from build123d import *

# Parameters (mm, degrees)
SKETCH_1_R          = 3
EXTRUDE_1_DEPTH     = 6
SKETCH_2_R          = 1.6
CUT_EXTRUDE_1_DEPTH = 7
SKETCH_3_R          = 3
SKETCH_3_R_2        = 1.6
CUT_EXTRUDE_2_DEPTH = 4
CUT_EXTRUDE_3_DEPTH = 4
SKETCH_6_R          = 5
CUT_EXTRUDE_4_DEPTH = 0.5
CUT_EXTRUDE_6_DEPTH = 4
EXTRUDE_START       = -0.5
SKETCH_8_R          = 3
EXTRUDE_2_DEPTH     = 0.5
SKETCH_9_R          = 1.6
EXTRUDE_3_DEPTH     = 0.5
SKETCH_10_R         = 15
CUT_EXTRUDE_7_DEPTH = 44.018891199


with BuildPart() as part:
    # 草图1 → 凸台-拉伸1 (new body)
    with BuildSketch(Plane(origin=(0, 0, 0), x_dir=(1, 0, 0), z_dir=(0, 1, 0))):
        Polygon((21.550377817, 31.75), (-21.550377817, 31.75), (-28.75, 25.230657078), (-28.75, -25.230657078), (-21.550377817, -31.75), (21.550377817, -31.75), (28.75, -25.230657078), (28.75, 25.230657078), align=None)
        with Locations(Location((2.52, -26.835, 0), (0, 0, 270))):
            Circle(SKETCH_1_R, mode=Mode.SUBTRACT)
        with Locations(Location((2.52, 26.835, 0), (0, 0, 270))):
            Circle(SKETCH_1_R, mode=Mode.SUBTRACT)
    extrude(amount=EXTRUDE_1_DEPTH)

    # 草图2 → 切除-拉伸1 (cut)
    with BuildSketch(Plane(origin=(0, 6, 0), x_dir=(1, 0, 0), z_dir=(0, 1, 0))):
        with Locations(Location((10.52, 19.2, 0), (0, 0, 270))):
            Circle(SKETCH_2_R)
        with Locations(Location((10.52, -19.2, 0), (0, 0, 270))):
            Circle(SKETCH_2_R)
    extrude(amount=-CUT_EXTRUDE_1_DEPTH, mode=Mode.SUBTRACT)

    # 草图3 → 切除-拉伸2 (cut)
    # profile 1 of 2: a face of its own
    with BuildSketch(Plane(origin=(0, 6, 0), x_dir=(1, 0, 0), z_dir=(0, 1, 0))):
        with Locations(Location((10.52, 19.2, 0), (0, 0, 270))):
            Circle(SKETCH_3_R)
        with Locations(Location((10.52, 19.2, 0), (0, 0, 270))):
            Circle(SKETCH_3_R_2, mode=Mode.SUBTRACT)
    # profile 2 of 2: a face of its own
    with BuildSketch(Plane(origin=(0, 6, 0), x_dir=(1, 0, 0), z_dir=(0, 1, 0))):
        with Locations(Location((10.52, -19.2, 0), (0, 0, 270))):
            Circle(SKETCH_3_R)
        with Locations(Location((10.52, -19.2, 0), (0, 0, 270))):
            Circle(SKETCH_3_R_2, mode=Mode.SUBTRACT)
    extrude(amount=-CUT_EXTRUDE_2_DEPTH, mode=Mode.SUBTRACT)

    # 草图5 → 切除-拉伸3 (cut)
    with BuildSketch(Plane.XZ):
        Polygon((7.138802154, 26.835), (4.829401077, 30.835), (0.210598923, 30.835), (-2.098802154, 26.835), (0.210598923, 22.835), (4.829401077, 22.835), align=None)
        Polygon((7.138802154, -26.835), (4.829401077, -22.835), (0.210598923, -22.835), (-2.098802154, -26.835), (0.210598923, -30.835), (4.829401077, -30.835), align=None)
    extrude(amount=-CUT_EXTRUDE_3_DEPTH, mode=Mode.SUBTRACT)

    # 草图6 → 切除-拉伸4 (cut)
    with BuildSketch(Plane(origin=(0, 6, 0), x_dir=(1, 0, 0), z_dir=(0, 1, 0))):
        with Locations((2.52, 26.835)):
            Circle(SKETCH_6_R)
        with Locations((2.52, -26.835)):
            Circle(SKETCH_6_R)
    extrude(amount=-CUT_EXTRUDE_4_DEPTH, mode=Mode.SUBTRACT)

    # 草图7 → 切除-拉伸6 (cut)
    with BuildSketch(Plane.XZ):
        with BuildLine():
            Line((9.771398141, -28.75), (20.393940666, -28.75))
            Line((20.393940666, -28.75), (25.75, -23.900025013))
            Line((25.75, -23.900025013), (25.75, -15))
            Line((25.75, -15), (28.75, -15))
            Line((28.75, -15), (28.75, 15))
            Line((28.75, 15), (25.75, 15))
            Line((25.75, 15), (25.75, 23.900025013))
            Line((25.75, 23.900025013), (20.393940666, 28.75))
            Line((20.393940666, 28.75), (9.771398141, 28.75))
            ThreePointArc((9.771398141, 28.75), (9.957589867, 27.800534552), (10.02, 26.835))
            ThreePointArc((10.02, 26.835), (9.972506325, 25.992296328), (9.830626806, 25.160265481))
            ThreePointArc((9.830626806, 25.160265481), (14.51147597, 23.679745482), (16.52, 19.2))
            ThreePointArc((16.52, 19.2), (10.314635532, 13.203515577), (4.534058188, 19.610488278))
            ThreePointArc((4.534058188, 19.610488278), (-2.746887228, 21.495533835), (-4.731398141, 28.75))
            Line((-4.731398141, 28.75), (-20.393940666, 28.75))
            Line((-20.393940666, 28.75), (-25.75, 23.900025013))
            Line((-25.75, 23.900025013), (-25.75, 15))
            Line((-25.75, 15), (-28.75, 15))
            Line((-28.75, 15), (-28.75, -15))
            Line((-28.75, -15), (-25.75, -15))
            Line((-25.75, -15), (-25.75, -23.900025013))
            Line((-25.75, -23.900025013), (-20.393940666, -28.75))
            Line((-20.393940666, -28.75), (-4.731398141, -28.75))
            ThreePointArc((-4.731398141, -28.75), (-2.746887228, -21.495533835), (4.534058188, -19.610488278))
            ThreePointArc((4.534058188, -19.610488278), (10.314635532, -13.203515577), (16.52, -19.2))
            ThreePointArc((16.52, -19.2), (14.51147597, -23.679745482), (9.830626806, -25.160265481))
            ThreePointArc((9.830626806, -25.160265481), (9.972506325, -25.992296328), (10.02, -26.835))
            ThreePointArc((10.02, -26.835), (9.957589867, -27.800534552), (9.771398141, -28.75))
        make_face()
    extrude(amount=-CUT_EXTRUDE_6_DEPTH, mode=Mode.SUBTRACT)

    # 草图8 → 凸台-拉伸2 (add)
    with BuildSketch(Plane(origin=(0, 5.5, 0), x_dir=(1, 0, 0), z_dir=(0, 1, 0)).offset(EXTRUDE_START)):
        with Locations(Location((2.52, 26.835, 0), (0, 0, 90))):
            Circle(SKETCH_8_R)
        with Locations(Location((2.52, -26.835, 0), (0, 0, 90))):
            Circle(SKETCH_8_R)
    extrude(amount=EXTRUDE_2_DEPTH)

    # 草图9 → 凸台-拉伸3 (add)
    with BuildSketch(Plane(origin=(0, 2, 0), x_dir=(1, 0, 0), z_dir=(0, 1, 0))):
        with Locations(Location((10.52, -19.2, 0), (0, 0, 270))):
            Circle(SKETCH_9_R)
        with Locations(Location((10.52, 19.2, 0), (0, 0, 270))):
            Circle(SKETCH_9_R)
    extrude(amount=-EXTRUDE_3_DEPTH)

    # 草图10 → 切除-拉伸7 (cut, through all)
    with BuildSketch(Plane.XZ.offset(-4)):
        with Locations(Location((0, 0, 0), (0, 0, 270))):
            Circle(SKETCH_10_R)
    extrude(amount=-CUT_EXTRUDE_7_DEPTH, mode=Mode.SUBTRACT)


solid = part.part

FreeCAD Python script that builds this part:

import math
import FreeCAD as App
import Part
import Sketcher
from FreeCAD import Vector
Q = App.Units.Quantity


def add_polygon(sketch, points):
    """Adds a closed chain of lines whose ends are joined by coincident constraints."""
    first, n = sketch.GeometryCount, len(points)
    for a, b in zip(points, points[1:] + points[:1]):
        sketch.addGeometry(Part.LineSegment(App.Vector(*a, 0), App.Vector(*b, 0)), False)
    for i in range(n):
        sketch.addConstraint(Sketcher.Constraint("Coincident", first + i, 2, first + (i + 1) % n, 1))

doc = App.newDocument("Part")
body = doc.addObject("PartDesign::Body", "Body")

sketch1 = body.newObject("Sketcher::SketchObject", "Sketch")
sketch1.AttachmentSupport = (doc.getObject("XZ_Plane"), [""])
sketch1.MapMode = "FlatFace"
add_polygon(sketch1, [(21.6, -31.8), (-21.6, -31.8), (-28.8, -25.2), (-28.8, 25.2), (-21.6, 31.8), (21.6, 31.8), (28.8, 25.2), (28.8, -25.2)])
sketch1.addGeometry(Part.Circle(Vector(2.5, 26.8, 0), Vector(0, 0, 1), 3), False)
sketch1.addGeometry(Part.Circle(Vector(2.5, -26.8, 0), Vector(0, 0, 1), 3), False)
sketch1.addConstraint(Sketcher.Constraint("Horizontal", 0))
sketch1.addConstraint(Sketcher.Constraint("Vertical", 2))
sketch1.addConstraint(Sketcher.Constraint("Horizontal", 4))
sketch1.addConstraint(Sketcher.Constraint("Vertical", 6))
sketch1.addConstraint(Sketcher.Constraint("Equal", 8, 9))
sketch1.addConstraint(Sketcher.Constraint("Symmetric", 0, 2, 4, 2, -1, 1))
sketch1.addConstraint(Sketcher.Constraint("Symmetric", 1, 2, 5, 2, -1, 1))
sketch1.addConstraint(Sketcher.Constraint("Symmetric", 8, 3, 9, 3, -1))
sketch1.addConstraint(Sketcher.Constraint("Parallel", 3, 7))
sketch1.addConstraint(Sketcher.Constraint("Horizontal", 2, 2, 5, 2))
sketch1.addConstraint(Sketcher.Constraint("Horizontal", 1, 2, 6, 2))
sketch1.addConstraint(Sketcher.Constraint("Vertical", 0, 2, 3, 2))
sketch1.addConstraint(Sketcher.Constraint("Diameter", 8, 6.0))
sketch1.addConstraint(Sketcher.Constraint("DistanceY", 0, 2, 3, 2, 63.5))
sketch1.addConstraint(Sketcher.Constraint("DistanceX", 2, 2, 5, 2, 57.5))
sketch1.addConstraint(Sketcher.Constraint("DistanceX", -1, 1, 8, 3, 2.52))
sketch1.addConstraint(Sketcher.Constraint("DistanceY", 9, 3, 8, 3, 53.67))
sketch1.addConstraint(Sketcher.Constraint("DistanceX", 0, 2, 0, 1, 43.100756))
sketch1.addConstraint(Sketcher.Constraint("DistanceY", 2, 1, 2, 2, 50.461314))
pad1 = body.newObject("PartDesign::Pad", "Pad")
pad1.Profile = sketch1
pad1.Length = 6
pad1.Reversed = True

sketch2 = body.newObject("Sketcher::SketchObject", "Sketch001")
sketch2.AttachmentSupport = (doc.getObject("XZ_Plane"), [""])
sketch2.MapMode = "FlatFace"
sketch2.AttachmentOffset = App.Placement(Vector(0, 0, -6), App.Rotation())
sketch2.addGeometry(Part.Circle(Vector(10.5, -19.2, 0), Vector(0, 0, 1), 1.6), False)
sketch2.addGeometry(Part.Circle(Vector(10.5, 19.2, 0), Vector(0, 0, 1), 1.6), False)
sketch2.addConstraint(Sketcher.Constraint("Equal", 0, 1))
sketch2.addConstraint(Sketcher.Constraint("Symmetric", 0, 3, 1, 3, -1))
sketch2.addConstraint(Sketcher.Constraint("Diameter", 0, 3.2))
sketch2.addConstraint(Sketcher.Constraint("DistanceY", 0, 3, -1, 1, 19.2))
sketch2.addConstraint(Sketcher.Constraint("DistanceX", -1, 1, 0, 3, 10.52))
pocket1 = body.newObject("PartDesign::Pocket", "Pocket")
pocket1.Profile = sketch2
pocket1.Length = 7
pocket1.Reversed = True

sketch3 = body.newObject("Sketcher::SketchObject", "Sketch002")
sketch3.AttachmentSupport = (doc.getObject("XZ_Plane"), [""])
sketch3.MapMode = "FlatFace"
sketch3.AttachmentOffset = App.Placement(Vector(0, 0, -6), App.Rotation())
sketch3.addGeometry(Part.Circle(Vector(10.5, -19.2, 0), Vector(0, 0, 1), 3), False)
sketch3.addGeometry(Part.Circle(Vector(10.5, -19.2, 0), Vector(0, 0, 1), 1.6), False)
sketch3.addGeometry(Part.Circle(Vector(10.5, 19.2, 0), Vector(0, 0, 1), 3), False)
sketch3.addGeometry(Part.Circle(Vector(10.5, 19.2, 0), Vector(0, 0, 1), 1.6), False)
sketch3.addConstraint(Sketcher.Constraint("Coincident", 1, 3, 0, 3))
sketch3.addConstraint(Sketcher.Constraint("Coincident", 3, 3, 2, 3))
sketch3.addConstraint(Sketcher.Constraint("Equal", 0, 2))
sketch3.addConstraint(Sketcher.Constraint("Equal", 1, 3))
sketch3.addConstraint(Sketcher.Constraint("Symmetric", 0, 3, 2, 3, -1))
sketch3.addConstraint(Sketcher.Constraint("Diameter", 0, 6.0))
sketch3.addConstraint(Sketcher.Constraint("Diameter", 1, 3.2))
sketch3.addConstraint(Sketcher.Constraint("DistanceY", 0, 3, -1, 1, 19.2))
sketch3.addConstraint(Sketcher.Constraint("DistanceX", -1, 1, 0, 3, 10.52))
pocket2 = body.newObject("PartDesign::Pocket", "Pocket001")
pocket2.Profile = sketch3
pocket2.Length = 4
pocket2.Reversed = True

sketch4 = body.newObject("Sketcher::SketchObject", "Sketch003")
sketch4.AttachmentSupport = (doc.getObject("XZ_Plane"), [""])
sketch4.MapMode = "FlatFace"
add_polygon(sketch4, [(7.1, 26.8), (4.8, 30.8), (0.2, 30.8), (-2.1, 26.8), (0.2, 22.8), (4.8, 22.8)])
add_polygon(sketch4, [(7.1, -26.8), (4.8, -22.8), (0.2, -22.8), (-2.1, -26.8), (0.2, -30.8), (4.8, -30.8)])
sketch4.addConstraint(Sketcher.Constraint("Horizontal", 1))
sketch4.addConstraint(Sketcher.Constraint("Horizontal", 4))
sketch4.addConstraint(Sketcher.Constraint("Horizontal", 7))
sketch4.addConstraint(Sketcher.Constraint("Horizontal", 10))
sketch4.addConstraint(Sketcher.Constraint("Symmetric", 4, 2, 6, 2, -1))
sketch4.addConstraint(Sketcher.Constraint("Symmetric", 2, 2, 8, 2, -1))
sketch4.addConstraint(Sketcher.Constraint("Symmetric", 1, 2, 9, 2, -1))
sketch4.addConstraint(Sketcher.Constraint("Symmetric", 5, 2, 11, 2, -1))
sketch4.addConstraint(Sketcher.Constraint("Parallel", 0, 3))
sketch4.addConstraint(Sketcher.Constraint("Parallel", 2, 5))
sketch4.addConstraint(Sketcher.Constraint("Parallel", 3, 6))
sketch4.addConstraint(Sketcher.Constraint("Parallel", 5, 8))
sketch4.addConstraint(Sketcher.Constraint("Parallel", 8, 11))
sketch4.addConstraint(Sketcher.Constraint("Horizontal", 2, 2, 5, 2))
sketch4.addConstraint(Sketcher.Constraint("Vertical", 1, 2, 3, 2))
sketch4.addConstraint(Sketcher.Constraint("Angle", 0, Q("120 deg")))
sketch4.addConstraint(Sketcher.Constraint("DistanceY", 2, 2, 1, 2, 4.0))
sketch4.addConstraint(Sketcher.Constraint("DistanceY", 6, 2, 4, 2, 45.67))
sketch4.addConstraint(Sketcher.Constraint("DistanceX", -1, 1, 0, 2, 4.829401))
sketch4.addConstraint(Sketcher.Constraint("DistanceX", -1, 1, 1, 2, 0.210599))
pocket3 = body.newObject("PartDesign::Pocket", "Pocket002")
pocket3.Profile = sketch4
pocket3.Length = 4

sketch5 = body.newObject("Sketcher::SketchObject", "Sketch004")
sketch5.AttachmentSupport = (doc.getObject("XZ_Plane"), [""])
sketch5.MapMode = "FlatFace"
sketch5.AttachmentOffset = App.Placement(Vector(0, 0, -6), App.Rotation())
sketch5.addGeometry(Part.Circle(Vector(3, -27, 0), Vector(0, 0, 1), 5), False)
sketch5.addGeometry(Part.Circle(Vector(3, 27, 0), Vector(0, 0, 1), 5), False)
sketch5.addConstraint(Sketcher.Constraint("Equal", 0, 1))
sketch5.addConstraint(Sketcher.Constraint("Symmetric", 0, 3, 1, 3, -1))
sketch5.addConstraint(Sketcher.Constraint("Diameter", 0, 10.0))
sketch5.addConstraint(Sketcher.Constraint("DistanceX", -1, 1, 0, 3, 2.52))
sketch5.addConstraint(Sketcher.Constraint("DistanceY", 0, 3, 1, 3, 53.67))
pocket4 = body.newObject("PartDesign::Pocket", "Pocket003")
pocket4.Profile = sketch5
pocket4.Length = 0.5
pocket4.Reversed = True

sketch6 = body.newObject("Sketcher::SketchObject", "Sketch005")
sketch6.AttachmentSupport = (doc.getObject("XZ_Plane"), [""])
sketch6.MapMode = "FlatFace"
sketch6.addGeometry(Part.LineSegment(Vector(9.771398, -28.75, 0), Vector(20.393941, -28.75, 0)), False)
sketch6.addGeometry(Part.LineSegment(Vector(20.393941, -28.75, 0), Vector(25.75, -23.900025, 0)), False)
sketch6.addGeometry(Part.LineSegment(Vector(25.75, -23.900025, 0), Vector(25.75, -15, 0)), False)
sketch6.addGeometry(Part.LineSegment(Vector(25.75, -15, 0), Vector(28.75, -15, 0)), False)
sketch6.addGeometry(Part.LineSegment(Vector(28.75, -15, 0), Vector(28.75, 15, 0)), False)
sketch6.addGeometry(Part.LineSegment(Vector(28.75, 15, 0), Vector(25.75, 15, 0)), False)
sketch6.addGeometry(Part.LineSegment(Vector(25.75, 15, 0), Vector(25.75, 23.900025, 0)), False)
sketch6.addGeometry(Part.LineSegment(Vector(25.75, 23.900025, 0), Vector(20.393941, 28.75, 0)), False)
sketch6.addGeometry(Part.LineSegment(Vector(20.393941, 28.75, 0), Vector(9.771398, 28.75, 0)), False)
sketch6.addGeometry(Part.ArcOfCircle(Part.Circle(Vector(2.52, 26.835, 0), Vector(0, 0, 1), 7.5), math.radians(0), math.radians(14.793338)), False)
sketch6.addGeometry(Part.ArcOfCircle(Part.Circle(Vector(2.52, 26.835, 0), Vector(0, 0, 1), 7.5), math.radians(-12.902811), math.radians(0)), False)
sketch6.addGeometry(Part.ArcOfCircle(Part.Circle(Vector(10.52, 19.2, 0), Vector(0, 0, 1), 6), math.radians(0), math.radians(96.5976)), False)
sketch6.addGeometry(Part.ArcOfCircle(Part.Circle(Vector(10.52, 19.2, 0), Vector(0, 0, 1), 6), math.radians(176.077061), math.radians(360)), False)
sketch6.addGeometry(Part.ArcOfCircle(Part.Circle(Vector(2.52, 26.835, 0), Vector(0, 0, 1), 7.5), math.radians(165.206662), math.radians(285.577472)), False)
sketch6.addGeometry(Part.LineSegment(Vector(-4.731398, 28.75, 0), Vector(-20.393941, 28.75, 0)), False)
sketch6.addGeometry(Part.LineSegment(Vector(-20.393941, 28.75, 0), Vector(-25.75, 23.900025, 0)), False)
sketch6.addGeometry(Part.LineSegment(Vector(-25.75, 23.900025, 0), Vector(-25.75, 15, 0)), False)
sketch6.addGeometry(Part.LineSegment(Vector(-25.75, 15, 0), Vector(-28.75, 15, 0)), False)
sketch6.addGeometry(Part.LineSegment(Vector(-28.75, 15, 0), Vector(-28.75, -15, 0)), False)
sketch6.addGeometry(Part.LineSegment(Vector(-28.75, -15, 0), Vector(-25.75, -15, 0)), False)
sketch6.addGeometry(Part.LineSegment(Vector(-25.75, -15, 0), Vector(-25.75, -23.900025, 0)), False)
sketch6.addGeometry(Part.LineSegment(Vector(-25.75, -23.900025, 0), Vector(-20.393941, -28.75, 0)), False)
sketch6.addGeometry(Part.LineSegment(Vector(-20.393941, -28.75, 0), Vector(-4.731398, -28.75, 0)), False)
sketch6.addGeometry(Part.ArcOfCircle(Part.Circle(Vector(2.52, -26.835, 0), Vector(0, 0, 1), 7.5), math.radians(74.422528), math.radians(194.793338)), False)
sketch6.addGeometry(Part.ArcOfCircle(Part.Circle(Vector(10.52, -19.2, 0), Vector(0, 0, 1), 6), math.radians(0), math.radians(183.922939)), False)
sketch6.addGeometry(Part.ArcOfCircle(Part.Circle(Vector(10.52, -19.2, 0), Vector(0, 0, 1), 6), math.radians(-96.5976), math.radians(0)), False)
sketch6.addGeometry(Part.ArcOfCircle(Part.Circle(Vector(2.52, -26.835, 0), Vector(0, 0, 1), 7.5), math.radians(0), math.radians(12.902811)), False)
sketch6.addGeometry(Part.ArcOfCircle(Part.Circle(Vector(2.52, -26.835, 0), Vector(0, 0, 1), 7.5), math.radians(-14.793338), math.radians(0)), False)
sketch6.addConstraint(Sketcher.Constraint("Coincident", 0, 2, 1, 1))
sketch6.addConstraint(Sketcher.Constraint("Coincident", 1, 2, 2, 1))
sketch6.addConstraint(Sketcher.Constraint("Coincident", 2, 2, 3, 1))
sketch6.addConstraint(Sketcher.Constraint("Coincident", 3, 2, 4, 1))
sketch6.addConstraint(Sketcher.Constraint("Coincident", 4, 2, 5, 1))
sketch6.addConstraint(Sketcher.Constraint("Coincident", 5, 2, 6, 1))
sketch6.addConstraint(Sketcher.Constraint("Coincident", 6, 2, 7, 1))
sketch6.addConstraint(Sketcher.Constraint("Coincident", 7, 2, 8, 1))
sketch6.addConstraint(Sketcher.Constraint("Coincident", 8, 2, 9, 2))
sketch6.addConstraint(Sketcher.Constraint("Tangent", 9, 1, 10, 2))
sketch6.addConstraint(Sketcher.Constraint("Coincident", 10, 1, 11, 2))
sketch6.addConstraint(Sketcher.Constraint("Tangent", 11, 1, 12, 2))
sketch6.addConstraint(Sketcher.Constraint("Coincident", 12, 1, 13, 2))
sketch6.addConstraint(Sketcher.Constraint("Coincident", 13, 1, 14, 1))
sketch6.addConstraint(Sketcher.Constraint("Coincident", 14, 2, 15, 1))
sketch6.addConstraint(Sketcher.Constraint("Coincident", 15, 2, 16, 1))
sketch6.addConstraint(Sketcher.Constraint("Coincident", 16, 2, 17, 1))
sketch6.addConstraint(Sketcher.Constraint("Coincident", 17, 2, 18, 1))
sketch6.addConstraint(Sketcher.Constraint("Coincident", 18, 2, 19, 1))
sketch6.addConstraint(Sketcher.Constraint("Coincident", 19, 2, 20, 1))
sketch6.addConstraint(Sketcher.Constraint("Coincident", 20, 2, 21, 1))
sketch6.addConstraint(Sketcher.Constraint("Coincident", 21, 2, 22, 1))
sketch6.addConstraint(Sketcher.Constraint("Coincident", 22, 2, 23, 2))
sketch6.addConstraint(Sketcher.Constraint("Coincident", 23, 1, 24, 2))
sketch6.addConstraint(Sketcher.Constraint("Tangent", 24, 1, 25, 2))
sketch6.addConstraint(Sketcher.Constraint("Coincident", 25, 1, 26, 2))
sketch6.addConstraint(Sketcher.Constraint("Tangent", 26, 1, 27, 2))
sketch6.addConstraint(Sketcher.Constraint("Coincident", 27, 1, 0, 1))
sketch6.addConstraint(Sketcher.Constraint("Horizontal", 0))
sketch6.addConstraint(Sketcher.Constraint("Vertical", 2))
sketch6.addConstraint(Sketcher.Constraint("Horizontal", 3))
sketch6.addConstraint(Sketcher.Constraint("Vertical", 4))
sketch6.addConstraint(Sketcher.Constraint("Horizontal", 5))
sketch6.addConstraint(Sketcher.Constraint("Vertical", 6))
sketch6.addConstraint(Sketcher.Constraint("Horizontal", 8))
sketch6.addConstraint(Sketcher.Constraint("Horizontal", 14))
sketch6.addConstraint(Sketcher.Constraint("Vertical", 16))
sketch6.addConstraint(Sketcher.Constraint("Horizontal", 17))
sketch6.addConstraint(Sketcher.Constraint("Vertical", 18))
sketch6.addConstraint(Sketcher.Constraint("Horizontal", 19))
sketch6.addConstraint(Sketcher.Constraint("Vertical", 20))
sketch6.addConstraint(Sketcher.Constraint("Horizontal", 22))
sketch6.addConstraint(Sketcher.Constraint("Coincident", 13, 3, 9, 3))
sketch6.addConstraint(Sketcher.Constraint("Coincident", 26, 3, 23, 3))
sketch6.addConstraint(Sketcher.Constraint("Equal", 9, 10))
sketch6.addConstraint(Sketcher.Constraint("Equal", 11, 12))
sketch6.addConstraint(Sketcher.Constraint("Equal", 10, 13))
sketch6.addConstraint(Sketcher.Constraint("Equal", 13, 23))
sketch6.addConstraint(Sketcher.Constraint("Equal", 12, 24))
sketch6.addConstraint(Sketcher.Constraint("Equal", 24, 25))
sketch6.addConstraint(Sketcher.Constraint("Equal", 23, 26))
sketch6.addConstraint(Sketcher.Constraint("Equal", 26, 27))
sketch6.addConstraint(Sketcher.Constraint("Symmetric", 0, 2, 14, 2, -1, 1))
sketch6.addConstraint(Sketcher.Constraint("Symmetric", 1, 2, 15, 2, -1, 1))
sketch6.addConstraint(Sketcher.Constraint("Symmetric", 3, 2, 17, 2, -1, 1))
sketch6.addConstraint(Sketcher.Constraint("Symmetric", 5, 2, 19, 2, -1, 1))
sketch6.addConstraint(Sketcher.Constraint("Symmetric", 7, 2, 21, 2, -1, 1))
sketch6.addConstraint(Sketcher.Constraint("Symmetric", 7, 2, 14, 2, -2))
sketch6.addConstraint(Sketcher.Constraint("Symmetric", 6, 2, 15, 2, -2))
sketch6.addConstraint(Sketcher.Constraint("Symmetric", 9, 3, 23, 3, -1))
sketch6.addConstraint(Sketcher.Constraint("Symmetric", 11, 3, 24, 3, -1))
sketch6.addConstraint(Sketcher.Constraint("Parallel", 7, 21))
sketch6.addConstraint(Sketcher.Constraint("Horizontal", 13, 3, 9, 1))
sketch6.addConstraint(Sketcher.Constraint("Horizontal", 12, 3, 11, 1))
sketch6.addConstraint(Sketcher.Constraint("Horizontal", 5, 2, 16, 2))
sketch6.addConstraint(Sketcher.Constraint("Horizontal", 25, 3, 24, 1))
sketch6.addConstraint(Sketcher.Constraint("Horizontal", 27, 3, 26, 1))
sketch6.addConstraint(Sketcher.Constraint("Radius", 11, 6.0))
sketch6.addConstraint(Sketcher.Constraint("Radius", 9, 7.5))
sketch6.addConstraint(Sketcher.Constraint("DistanceX", 3, 1, 3, 2, 3.0))
sketch6.addConstraint(Sketcher.Constraint("DistanceY", 4, 1, 4, 2, 30.0))
sketch6.addConstraint(Sketcher.Constraint("DistanceX", 9, 3, 11, 3, 8.0))
sketch6.addConstraint(Sketcher.Constraint("DistanceY", -1, 1, 11, 3, 19.2))
sketch6.addConstraint(Sketcher.Constraint("DistanceX", -1, 1, 9, 3, 2.52))
sketch6.addConstraint(Sketcher.Constraint("DistanceY", 0, 2, -1, 1, 28.75))
sketch6.addConstraint(Sketcher.Constraint("DistanceX", -1, 1, 1, 2, 25.75))
sketch6.addConstraint(Sketcher.Constraint("DistanceY", 23, 3, 10, 3, 53.67))
sketch6.addConstraint(Sketcher.Constraint("DistanceX", 14, 2, 12, 1, 24.927999))
sketch6.addConstraint(Sketcher.Constraint("DistanceY", 2, 1, 2, 2, 8.900025))
pocket5 = body.newObject("PartDesign::Pocket", "Pocket004")
pocket5.Profile = sketch6
pocket5.Length = 4

sketch7 = body.newObject("Sketcher::SketchObject", "Sketch006")
sketch7.AttachmentSupport = (doc.getObject("XZ_Plane"), [""])
sketch7.MapMode = "FlatFace"
sketch7.AttachmentOffset = App.Placement(Vector(0, 0, -5), App.Rotation())
sketch7.addGeometry(Part.Circle(Vector(2.5, -26.8, 0), Vector(0, 0, 1), 3), False)
sketch7.addGeometry(Part.Circle(Vector(2.5, 26.8, 0), Vector(0, 0, 1), 3), False)
sketch7.addConstraint(Sketcher.Constraint("Equal", 0, 1))
sketch7.addConstraint(Sketcher.Constraint("Symmetric", 0, 3, 1, 3, -1))
sketch7.addConstraint(Sketcher.Constraint("Diameter", 0, 6.0))
sketch7.addConstraint(Sketcher.Constraint("DistanceX", -1, 1, 0, 3, 2.52))
sketch7.addConstraint(Sketcher.Constraint("DistanceY", 0, 3, 1, 3, 53.67))
pad2 = body.newObject("PartDesign::Pad", "Pad001")
pad2.Profile = sketch7
pad2.Length = 0.5
pad2.Reversed = True

sketch8 = body.newObject("Sketcher::SketchObject", "Sketch007")
sketch8.AttachmentSupport = (doc.getObject("XZ_Plane"), [""])
sketch8.MapMode = "FlatFace"
sketch8.AttachmentOffset = App.Placement(Vector(0, 0, -2), App.Rotation())
sketch8.addGeometry(Part.Circle(Vector(10.5, 19.2, 0), Vector(0, 0, 1), 1.6), False)
sketch8.addGeometry(Part.Circle(Vector(10.5, -19.2, 0), Vector(0, 0, 1), 1.6), False)
sketch8.addConstraint(Sketcher.Constraint("Equal", 0, 1))
sketch8.addConstraint(Sketcher.Constraint("Symmetric", 0, 3, 1, 3, -1))
sketch8.addConstraint(Sketcher.Constraint("Diameter", 0, 3.2))
sketch8.addConstraint(Sketcher.Constraint("DistanceY", -1, 1, 0, 3, 19.2))
sketch8.addConstraint(Sketcher.Constraint("DistanceX", -1, 1, 0, 3, 10.52))
pad3 = body.newObject("PartDesign::Pad", "Pad002")
pad3.Profile = sketch8
pad3.Length = 0.5

sketch9 = body.newObject("Sketcher::SketchObject", "Sketch008")
sketch9.AttachmentSupport = (doc.getObject("XZ_Plane"), [""])
sketch9.MapMode = "FlatFace"
sketch9.AttachmentOffset = App.Placement(Vector(0, 0, -4), App.Rotation())
sketch9.addGeometry(Part.Circle(Vector(0, 0, 0), Vector(0, 0, 1), 15), False)
sketch9.addConstraint(Sketcher.Constraint("Coincident", 0, 3, -1, 1))
sketch9.addConstraint(Sketcher.Constraint("Diameter", 0, 30.0))
pocket6 = body.newObject("PartDesign::Pocket", "Pocket005")
pocket6.Profile = sketch9
pocket6.Type = "ThroughAll"

doc.recompute()
